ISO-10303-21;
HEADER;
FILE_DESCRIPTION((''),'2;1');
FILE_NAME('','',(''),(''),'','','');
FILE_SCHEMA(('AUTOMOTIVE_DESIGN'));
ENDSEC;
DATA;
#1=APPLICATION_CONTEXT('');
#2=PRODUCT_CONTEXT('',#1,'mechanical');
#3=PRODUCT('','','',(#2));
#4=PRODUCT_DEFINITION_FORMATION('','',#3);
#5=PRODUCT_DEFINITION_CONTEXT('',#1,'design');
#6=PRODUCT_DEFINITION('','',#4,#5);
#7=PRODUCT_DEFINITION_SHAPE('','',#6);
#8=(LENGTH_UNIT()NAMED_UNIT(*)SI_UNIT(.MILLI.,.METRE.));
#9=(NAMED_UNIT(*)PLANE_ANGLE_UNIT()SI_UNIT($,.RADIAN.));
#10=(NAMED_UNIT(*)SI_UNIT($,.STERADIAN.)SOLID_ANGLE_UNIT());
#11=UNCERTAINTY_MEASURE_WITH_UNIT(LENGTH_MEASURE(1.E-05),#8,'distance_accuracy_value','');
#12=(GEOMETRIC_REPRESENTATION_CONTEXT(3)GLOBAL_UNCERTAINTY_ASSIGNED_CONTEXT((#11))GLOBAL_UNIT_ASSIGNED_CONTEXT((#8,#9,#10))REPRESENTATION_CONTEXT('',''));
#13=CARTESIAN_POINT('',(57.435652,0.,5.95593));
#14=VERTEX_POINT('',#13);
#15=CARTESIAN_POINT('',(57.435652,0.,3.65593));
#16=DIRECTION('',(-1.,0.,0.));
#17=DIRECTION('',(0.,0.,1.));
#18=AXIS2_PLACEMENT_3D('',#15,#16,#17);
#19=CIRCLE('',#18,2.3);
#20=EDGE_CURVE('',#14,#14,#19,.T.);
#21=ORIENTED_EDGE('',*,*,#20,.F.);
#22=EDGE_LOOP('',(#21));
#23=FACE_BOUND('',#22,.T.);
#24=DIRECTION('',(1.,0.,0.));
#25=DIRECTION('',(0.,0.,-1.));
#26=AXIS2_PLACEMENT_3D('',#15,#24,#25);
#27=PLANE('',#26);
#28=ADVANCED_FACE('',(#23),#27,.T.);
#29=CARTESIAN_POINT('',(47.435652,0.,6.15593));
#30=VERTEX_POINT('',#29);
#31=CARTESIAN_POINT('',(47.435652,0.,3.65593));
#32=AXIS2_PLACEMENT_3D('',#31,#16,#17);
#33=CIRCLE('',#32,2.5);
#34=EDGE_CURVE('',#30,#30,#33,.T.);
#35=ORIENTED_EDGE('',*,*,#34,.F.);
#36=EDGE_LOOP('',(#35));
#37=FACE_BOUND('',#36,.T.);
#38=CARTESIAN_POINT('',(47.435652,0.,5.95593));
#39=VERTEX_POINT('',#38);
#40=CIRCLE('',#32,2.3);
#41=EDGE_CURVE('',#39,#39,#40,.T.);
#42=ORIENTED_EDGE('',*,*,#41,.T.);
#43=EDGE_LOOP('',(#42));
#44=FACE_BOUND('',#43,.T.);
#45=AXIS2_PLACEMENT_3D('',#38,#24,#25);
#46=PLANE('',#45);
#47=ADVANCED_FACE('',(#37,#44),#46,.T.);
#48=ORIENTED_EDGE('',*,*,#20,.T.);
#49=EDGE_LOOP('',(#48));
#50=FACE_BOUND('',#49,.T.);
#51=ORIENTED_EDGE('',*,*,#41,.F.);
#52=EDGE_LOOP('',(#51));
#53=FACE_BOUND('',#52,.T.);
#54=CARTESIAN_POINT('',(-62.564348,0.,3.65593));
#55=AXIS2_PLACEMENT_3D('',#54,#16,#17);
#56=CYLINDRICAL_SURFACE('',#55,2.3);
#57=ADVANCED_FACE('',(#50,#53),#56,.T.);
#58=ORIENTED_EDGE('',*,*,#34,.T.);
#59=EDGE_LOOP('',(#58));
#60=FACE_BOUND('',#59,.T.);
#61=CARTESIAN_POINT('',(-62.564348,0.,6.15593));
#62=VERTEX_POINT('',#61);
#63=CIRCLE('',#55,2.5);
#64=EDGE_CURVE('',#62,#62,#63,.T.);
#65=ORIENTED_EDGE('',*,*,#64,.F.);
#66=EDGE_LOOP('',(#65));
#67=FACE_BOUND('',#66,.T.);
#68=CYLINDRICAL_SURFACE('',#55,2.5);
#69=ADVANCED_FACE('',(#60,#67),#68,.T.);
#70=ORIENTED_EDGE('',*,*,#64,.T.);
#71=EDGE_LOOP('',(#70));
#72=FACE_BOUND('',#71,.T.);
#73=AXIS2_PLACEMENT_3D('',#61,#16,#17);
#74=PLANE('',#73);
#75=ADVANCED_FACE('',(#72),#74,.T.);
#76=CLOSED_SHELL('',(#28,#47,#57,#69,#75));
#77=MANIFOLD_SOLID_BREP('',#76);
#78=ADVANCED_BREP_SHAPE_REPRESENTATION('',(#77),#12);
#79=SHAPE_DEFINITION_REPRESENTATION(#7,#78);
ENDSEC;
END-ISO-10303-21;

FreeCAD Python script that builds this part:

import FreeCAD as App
import Part
import Sketcher
from FreeCAD import Vector


def add_polygon(sketch, points):
    """Adds a closed chain of lines whose ends are joined by coincident constraints."""
    first, n = sketch.GeometryCount, len(points)
    for a, b in zip(points, points[1:] + points[:1]):
        sketch.addGeometry(Part.LineSegment(App.Vector(*a, 0), App.Vector(*b, 0)), False)
    for i in range(n):
        sketch.addConstraint(Sketcher.Constraint("Coincident", first + i, 2, first + (i + 1) % n, 1))

doc = App.newDocument("Part")
body = doc.addObject("PartDesign::Body", "Body")

sketch1 = body.newObject("Sketcher::SketchObject", "Sketch")
sketch1.AttachmentSupport = (doc.getObject("XZ_Plane"), [""])
sketch1.MapMode = "FlatFace"
add_polygon(sketch1, [(57.435652, 5.95593), (57.435652, 3.65593), (-62.564348, 3.65593), (-62.564348, 6.15593), (47.435652, 6.15593), (47.435652, 5.95593)])
sketch1.addGeometry(Part.LineSegment(Vector(-62.564348, 3.65593, 0), Vector(57.435652, 3.65593, 0)), True)
sketch1.addConstraint(Sketcher.Constraint("Vertical", 0))
sketch1.addConstraint(Sketcher.Constraint("Horizontal", 1))
sketch1.addConstraint(Sketcher.Constraint("Vertical", 2))
sketch1.addConstraint(Sketcher.Constraint("Horizontal", 3))
sketch1.addConstraint(Sketcher.Constraint("Vertical", 4))
sketch1.addConstraint(Sketcher.Constraint("Horizontal", 5))
sketch1.addConstraint(Sketcher.Constraint("Horizontal", 6))
sketch1.addConstraint(Sketcher.Constraint("Coincident", 6, 1, 1, 2))
sketch1.addConstraint(Sketcher.Constraint("Vertical", 5, 2, 6, 2))
sketch1.addConstraint(Sketcher.Constraint("DistanceX", 1, 2, 1, 1, 120.0))
sketch1.addConstraint(Sketcher.Constraint("DistanceX", 3, 1, 3, 2, 110.0))
sketch1.addConstraint(Sketcher.Constraint("DistanceY", 0, 2, 0, 1, 2.3))
sketch1.addConstraint(Sketcher.Constraint("DistanceY", 2, 1, 2, 2, 2.5))
sketch1.addConstraint(Sketcher.Constraint("DistanceY", -1, 1, 0, 2, 3.65593))
sketch1.addConstraint(Sketcher.Constraint("DistanceX", -1, 1, 0, 2, 57.435652))
revolution = body.newObject("PartDesign::Revolution", "Revolution")
revolution.Profile = sketch1
revolution.ReferenceAxis = (sketch1, ["Axis0"])
revolution.Angle = 360

doc.recompute()
